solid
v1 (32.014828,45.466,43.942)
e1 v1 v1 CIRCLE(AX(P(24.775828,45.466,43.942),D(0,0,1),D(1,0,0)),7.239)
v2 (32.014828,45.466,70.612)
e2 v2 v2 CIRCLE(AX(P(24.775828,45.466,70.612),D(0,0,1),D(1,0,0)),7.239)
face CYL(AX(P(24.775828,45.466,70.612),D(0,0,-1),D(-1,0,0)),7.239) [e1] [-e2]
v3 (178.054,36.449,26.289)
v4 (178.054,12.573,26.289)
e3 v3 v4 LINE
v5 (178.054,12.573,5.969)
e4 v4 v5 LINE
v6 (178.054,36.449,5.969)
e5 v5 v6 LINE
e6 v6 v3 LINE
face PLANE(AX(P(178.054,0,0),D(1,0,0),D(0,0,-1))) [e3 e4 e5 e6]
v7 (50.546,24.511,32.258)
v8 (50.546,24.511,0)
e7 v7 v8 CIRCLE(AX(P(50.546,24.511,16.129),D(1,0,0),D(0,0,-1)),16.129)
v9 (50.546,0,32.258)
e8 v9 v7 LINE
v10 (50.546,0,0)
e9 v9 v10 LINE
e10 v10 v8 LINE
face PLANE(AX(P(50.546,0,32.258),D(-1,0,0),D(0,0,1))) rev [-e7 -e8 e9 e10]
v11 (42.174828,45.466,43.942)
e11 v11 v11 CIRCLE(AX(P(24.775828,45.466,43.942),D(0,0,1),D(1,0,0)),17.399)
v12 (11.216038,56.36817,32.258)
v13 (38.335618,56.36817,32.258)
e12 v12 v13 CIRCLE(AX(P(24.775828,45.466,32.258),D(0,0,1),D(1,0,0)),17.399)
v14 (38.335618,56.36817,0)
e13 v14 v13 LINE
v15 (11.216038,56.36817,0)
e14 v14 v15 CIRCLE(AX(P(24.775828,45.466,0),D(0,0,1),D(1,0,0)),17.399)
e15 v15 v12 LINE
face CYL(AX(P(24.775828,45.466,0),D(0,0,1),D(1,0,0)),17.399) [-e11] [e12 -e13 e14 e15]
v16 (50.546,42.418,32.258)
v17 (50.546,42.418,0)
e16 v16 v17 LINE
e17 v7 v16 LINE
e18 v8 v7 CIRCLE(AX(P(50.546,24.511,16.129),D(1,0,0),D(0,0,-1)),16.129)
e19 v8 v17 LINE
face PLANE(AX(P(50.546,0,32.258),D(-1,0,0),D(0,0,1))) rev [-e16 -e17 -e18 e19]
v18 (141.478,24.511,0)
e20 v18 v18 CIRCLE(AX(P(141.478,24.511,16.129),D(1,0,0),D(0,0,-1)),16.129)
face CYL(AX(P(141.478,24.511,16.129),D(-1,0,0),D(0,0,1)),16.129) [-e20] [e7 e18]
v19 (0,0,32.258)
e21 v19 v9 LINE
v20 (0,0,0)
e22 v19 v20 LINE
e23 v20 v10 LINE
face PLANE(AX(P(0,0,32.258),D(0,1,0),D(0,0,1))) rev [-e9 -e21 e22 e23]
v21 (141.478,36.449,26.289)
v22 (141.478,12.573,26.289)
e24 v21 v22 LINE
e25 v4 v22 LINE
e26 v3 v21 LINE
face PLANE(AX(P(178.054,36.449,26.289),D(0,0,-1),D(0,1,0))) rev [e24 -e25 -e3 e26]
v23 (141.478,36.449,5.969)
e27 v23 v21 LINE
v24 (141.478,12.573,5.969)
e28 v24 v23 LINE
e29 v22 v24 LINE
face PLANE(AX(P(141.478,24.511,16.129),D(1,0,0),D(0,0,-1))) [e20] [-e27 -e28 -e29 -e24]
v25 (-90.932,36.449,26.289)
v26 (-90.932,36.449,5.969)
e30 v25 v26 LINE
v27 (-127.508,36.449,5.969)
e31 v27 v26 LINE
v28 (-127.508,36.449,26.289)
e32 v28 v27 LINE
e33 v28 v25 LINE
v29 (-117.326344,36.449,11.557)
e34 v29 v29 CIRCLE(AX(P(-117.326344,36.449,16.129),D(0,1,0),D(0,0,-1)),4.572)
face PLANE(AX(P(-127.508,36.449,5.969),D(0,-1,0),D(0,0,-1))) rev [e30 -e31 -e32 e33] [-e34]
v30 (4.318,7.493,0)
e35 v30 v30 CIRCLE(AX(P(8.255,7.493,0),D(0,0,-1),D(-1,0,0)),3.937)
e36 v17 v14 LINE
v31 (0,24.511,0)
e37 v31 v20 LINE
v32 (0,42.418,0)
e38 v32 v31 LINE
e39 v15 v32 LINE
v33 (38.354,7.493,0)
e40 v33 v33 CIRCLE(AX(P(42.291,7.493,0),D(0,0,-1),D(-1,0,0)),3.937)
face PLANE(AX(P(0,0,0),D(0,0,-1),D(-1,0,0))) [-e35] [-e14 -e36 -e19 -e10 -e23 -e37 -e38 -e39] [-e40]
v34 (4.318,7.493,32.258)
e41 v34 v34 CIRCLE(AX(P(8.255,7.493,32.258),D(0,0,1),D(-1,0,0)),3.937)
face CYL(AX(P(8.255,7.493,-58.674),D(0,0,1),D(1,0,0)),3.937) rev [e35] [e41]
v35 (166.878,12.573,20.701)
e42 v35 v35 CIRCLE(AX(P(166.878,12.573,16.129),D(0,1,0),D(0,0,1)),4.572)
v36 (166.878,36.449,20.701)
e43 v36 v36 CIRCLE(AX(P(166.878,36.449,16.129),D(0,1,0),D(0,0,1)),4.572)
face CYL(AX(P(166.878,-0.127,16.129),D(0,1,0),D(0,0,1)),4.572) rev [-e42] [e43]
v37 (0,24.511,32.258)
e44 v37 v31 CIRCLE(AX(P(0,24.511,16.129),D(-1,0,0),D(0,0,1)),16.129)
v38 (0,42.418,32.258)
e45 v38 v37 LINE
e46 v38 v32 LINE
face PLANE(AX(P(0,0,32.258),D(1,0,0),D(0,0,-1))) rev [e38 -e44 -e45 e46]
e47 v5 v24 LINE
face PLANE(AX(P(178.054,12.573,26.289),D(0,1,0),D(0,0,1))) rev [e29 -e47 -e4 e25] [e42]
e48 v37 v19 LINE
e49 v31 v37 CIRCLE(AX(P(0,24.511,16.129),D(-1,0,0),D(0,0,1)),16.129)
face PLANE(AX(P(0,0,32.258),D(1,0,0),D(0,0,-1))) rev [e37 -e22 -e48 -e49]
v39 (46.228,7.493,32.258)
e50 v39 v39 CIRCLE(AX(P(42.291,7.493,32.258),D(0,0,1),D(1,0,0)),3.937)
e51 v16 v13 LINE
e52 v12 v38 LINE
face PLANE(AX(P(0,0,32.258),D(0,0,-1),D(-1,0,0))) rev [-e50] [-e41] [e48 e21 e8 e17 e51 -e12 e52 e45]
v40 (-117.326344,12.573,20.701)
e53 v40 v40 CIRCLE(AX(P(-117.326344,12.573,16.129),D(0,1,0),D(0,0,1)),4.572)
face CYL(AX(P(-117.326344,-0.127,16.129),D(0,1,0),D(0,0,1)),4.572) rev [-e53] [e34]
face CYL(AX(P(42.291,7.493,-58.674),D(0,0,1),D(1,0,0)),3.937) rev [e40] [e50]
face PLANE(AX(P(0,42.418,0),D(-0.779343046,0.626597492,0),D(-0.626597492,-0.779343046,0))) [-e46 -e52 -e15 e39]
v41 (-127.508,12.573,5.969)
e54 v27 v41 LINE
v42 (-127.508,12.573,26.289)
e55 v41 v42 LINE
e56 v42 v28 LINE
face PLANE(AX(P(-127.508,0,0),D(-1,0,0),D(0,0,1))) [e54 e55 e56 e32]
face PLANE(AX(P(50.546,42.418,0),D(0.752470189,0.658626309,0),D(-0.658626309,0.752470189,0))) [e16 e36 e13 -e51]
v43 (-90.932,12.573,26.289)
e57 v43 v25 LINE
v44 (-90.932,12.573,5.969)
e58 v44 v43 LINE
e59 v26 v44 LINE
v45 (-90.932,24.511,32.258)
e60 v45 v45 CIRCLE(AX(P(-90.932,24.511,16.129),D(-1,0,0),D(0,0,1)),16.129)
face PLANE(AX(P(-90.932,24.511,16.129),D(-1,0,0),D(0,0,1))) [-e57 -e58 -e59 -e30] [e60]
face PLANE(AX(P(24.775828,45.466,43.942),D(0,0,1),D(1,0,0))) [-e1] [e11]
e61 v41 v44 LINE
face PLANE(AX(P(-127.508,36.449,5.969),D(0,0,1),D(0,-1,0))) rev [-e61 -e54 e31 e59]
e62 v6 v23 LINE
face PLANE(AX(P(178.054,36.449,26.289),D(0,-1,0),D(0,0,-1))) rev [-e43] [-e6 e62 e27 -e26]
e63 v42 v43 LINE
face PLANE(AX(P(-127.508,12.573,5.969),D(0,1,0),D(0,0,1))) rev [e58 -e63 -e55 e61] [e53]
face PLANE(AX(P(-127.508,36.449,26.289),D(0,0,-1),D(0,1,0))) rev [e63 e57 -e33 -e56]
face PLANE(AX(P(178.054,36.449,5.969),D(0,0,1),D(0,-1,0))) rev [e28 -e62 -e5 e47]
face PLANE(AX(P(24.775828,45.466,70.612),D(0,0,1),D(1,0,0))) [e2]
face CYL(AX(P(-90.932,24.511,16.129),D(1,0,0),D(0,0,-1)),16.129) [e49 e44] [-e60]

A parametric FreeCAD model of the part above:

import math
import FreeCAD as App
import Part
import Sketcher

V = App.Vector
Q = App.Units.Quantity


def add_polygon(sketch, points):
    """Adds a closed chain of lines whose ends are joined by coincident constraints."""
    first, n = sketch.GeometryCount, len(points)
    for a, b in zip(points, points[1:] + points[:1]):
        sketch.addGeometry(Part.LineSegment(App.Vector(*a, 0), App.Vector(*b, 0)), False)
    for i in range(n):
        sketch.addConstraint(Sketcher.Constraint("Coincident", first + i, 2, first + (i + 1) % n, 1))

doc = App.newDocument("Part")
body = doc.addObject("PartDesign::Body", "Body")

# Sketch on XY plane
sketch1 = body.newObject("Sketcher::SketchObject", "Sketch")
sketch1.AttachmentSupport = (doc.getObject("XY_Plane"), [""])
sketch1.MapMode = "FlatFace"
add_polygon(sketch1, [(0, 42), (0, 0), (51, 0), (51, 42)])  # lines 0-3
sketch1.addConstraint([
    Sketcher.Constraint("Vertical", 0),
    Sketcher.Constraint("Horizontal", 1),
    Sketcher.Constraint("Vertical", 2),
    Sketcher.Constraint("Horizontal", 3),
    Sketcher.Constraint("Coincident", 0, 2, -1, 1),
    Sketcher.Constraint("DistanceX", 1, 1, 1, 2, Q("1.99 in")),
    Sketcher.Constraint("DistanceY", 0, 2, 0, 1, Q("1.67 in")),
])
pad1 = body.newObject("PartDesign::Pad", "Pad")
pad1.Profile = sketch1
pad1.Length = Q("1.27 in")

# Sketch on XY plane
sketch2 = body.newObject("Sketcher::SketchObject", "Sketch001")
sketch2.AttachmentSupport = (doc.getObject("XY_Plane"), [""])
sketch2.MapMode = "FlatFace"
sketch2.AttachmentOffset = App.Placement(V(0, 0, 1.27 * 25.4), App.Rotation())
sketch2.addGeometry([
    Part.LineSegment(V(11, 56, 0), V(0, 42, 0)),
    Part.LineSegment(V(0, 42, 0), V(51, 42, 0)),
    Part.LineSegment(V(51, 42, 0), V(38, 56, 0)),
    Part.ArcOfCircle(Part.Circle(V(25, 45, 0), V(0, 0, 1), 17), math.radians(39), math.radians(141)),
], False)
sketch2.addConstraint([
    Sketcher.Constraint("Coincident", 0, 2, 1, 1),
    Sketcher.Constraint("Coincident", 1, 2, 2, 1),
    Sketcher.Constraint("Coincident", 2, 2, 3, 1),
    Sketcher.Constraint("Tangent", 3, 2, 0, 1),
    Sketcher.Constraint("Horizontal", 1),
    Sketcher.Constraint("PointOnObject", 0, 2, -2),
    Sketcher.Constraint("Horizontal", 2, 2, 3, 2),
    Sketcher.Constraint("Radius", 3, Q("0.685 in")),
    Sketcher.Constraint("DistanceX", 1, 1, 1, 2, Q("1.99 in")),
    Sketcher.Constraint("DistanceY", -1, 1, 3, 3, Q("1.79 in")),
    Sketcher.Constraint("DistanceY", -1, 1, 0, 2, Q("1.67 in")),
    Sketcher.Constraint("DistanceX", 3, 2, 2, 2, Q("1.0677 in")),
])
pad2 = body.newObject("PartDesign::Pad", "Pad001")
pad2.Profile = sketch2
pad2.Length = Q("1.27 in")
pad2.Reversed = True

# Sketch on YZ plane
sketch3 = body.newObject("Sketcher::SketchObject", "Sketch002")
sketch3.AttachmentSupport = (doc.getObject("YZ_Plane"), [""])
sketch3.MapMode = "FlatFace"
sketch3.addGeometry(Part.Circle(V(25, 16, 0), V(0, 0, 1), 16), False)
sketch3.addConstraint([
    Sketcher.Constraint("Diameter", 0, Q("1.27 in")),
    Sketcher.Constraint("DistanceX", -1, 1, 0, 3, Q("0.965 in")),
    Sketcher.Constraint("DistanceY", -1, 1, 0, 3, Q("0.635 in")),
])
pad3 = body.newObject("PartDesign::Pad", "Pad002")
pad3.Profile = sketch3
pad3.Length = Q("3.58 in")
pad3.Reversed = True

# Sketch on YZ plane
sketch4 = body.newObject("Sketcher::SketchObject", "Sketch003")
sketch4.AttachmentSupport = (doc.getObject("YZ_Plane"), [""])
sketch4.MapMode = "FlatFace"
sketch4.AttachmentOffset = App.Placement(V(0, 0, 1.99 * 25.4), App.Rotation())
sketch4.addGeometry(Part.Circle(V(25, 16, 0), V(0, 0, 1), 16), False)
sketch4.addConstraint([
    Sketcher.Constraint("Diameter", 0, Q("1.27 in")),
    Sketcher.Constraint("DistanceX", -1, 1, 0, 3, Q("0.965 in")),
    Sketcher.Constraint("DistanceY", -1, 1, 0, 3, Q("0.635 in")),
])
pad4 = body.newObject("PartDesign::Pad", "Pad003")
pad4.Profile = sketch4
pad4.Length = Q("3.58 in")

# Sketch on XY plane
sketch5 = body.newObject("Sketcher::SketchObject", "Sketch004")
sketch5.AttachmentSupport = (doc.getObject("XY_Plane"), [""])
sketch5.MapMode = "FlatFace"
sketch5.AttachmentOffset = App.Placement(V(0, 0, 1.27 * 25.4), App.Rotation())
sketch5.addGeometry([
    Part.Circle(V(42.3, 7.5, 0), V(0, 0, 1), 3.9),
    Part.Circle(V(8.3, 7.5, 0), V(0, 0, 1), 3.9),
], False)
sketch5.addConstraint([
    Sketcher.Constraint("Equal", 0, 1),
    Sketcher.Constraint("Horizontal", 0, 3, 1, 3),
    Sketcher.Constraint("Diameter", 0, Q("0.31 in")),
    Sketcher.Constraint("DistanceX", 1, 3, 0, 3, Q("1.34 in")),
    Sketcher.Constraint("DistanceX", -1, 1, 0, 3, Q("1.665 in")),
    Sketcher.Constraint("DistanceY", -1, 1, 0, 3, Q("0.295 in")),
])
pocket1 = body.newObject("PartDesign::Pocket", "Pocket")
pocket1.Profile = sketch5
pocket1.Length = Q("3.58 in")

# Sketch on XY plane
sketch6 = body.newObject("Sketcher::SketchObject", "Sketch005")
sketch6.AttachmentSupport = (doc.getObject("XY_Plane"), [""])
sketch6.MapMode = "FlatFace"
sketch6.AttachmentOffset = App.Placement(V(0, 0, 1.27 * 25.4), App.Rotation())
sketch6.addGeometry(Part.Circle(V(25, 45, 0), V(0, 0, 1), 17), False)
sketch6.addConstraint([
    Sketcher.Constraint("Diameter", 0, Q("1.37 in")),
    Sketcher.Constraint("DistanceY", -1, 1, 0, 3, Q("1.79 in")),
    Sketcher.Constraint("DistanceX", -1, 1, 0, 3, Q("24.775828 mm")),
])
pad5 = body.newObject("PartDesign::Pad", "Pad004")
pad5.Profile = sketch6
pad5.Length = Q("0.46 in")

# Sketch on XY plane
sketch7 = body.newObject("Sketcher::SketchObject", "Sketch006")
sketch7.AttachmentSupport = (doc.getObject("XY_Plane"), [""])
sketch7.MapMode = "FlatFace"
sketch7.AttachmentOffset = App.Placement(V(0, 0, 1.73 * 25.4), App.Rotation())
sketch7.addGeometry(Part.Circle(V(25, 45, 0), V(0, 0, 1), 7), False)
sketch7.addConstraint([
    Sketcher.Constraint("Diameter", 0, Q("0.57 in")),
    Sketcher.Constraint("DistanceY", -1, 1, 0, 3, Q("1.79 in")),
    Sketcher.Constraint("DistanceX", -1, 1, 0, 3, Q("24.775828 mm")),
])
pad6 = body.newObject("PartDesign::Pad", "Pad005")
pad6.Profile = sketch7
pad6.Length = Q("1.05 in")

# Sketch on YZ plane
sketch8 = body.newObject("Sketcher::SketchObject", "Sketch007")
sketch8.AttachmentSupport = (doc.getObject("YZ_Plane"), [""])
sketch8.MapMode = "FlatFace"
sketch8.AttachmentOffset = App.Placement(V(0, 0, 5.57 * 25.4), App.Rotation())
add_polygon(sketch8, [(36, 26), (13, 26), (13, 6), (36, 6)])  # lines 0-3
sketch8.addConstraint([
    Sketcher.Constraint("Horizontal", 0),
    Sketcher.Constraint("Vertical", 1),
    Sketcher.Constraint("Horizontal", 2),
    Sketcher.Constraint("Vertical", 3),
    Sketcher.Constraint("DistanceY", 1, 2, 1, 1, Q("0.8 in")),
    Sketcher.Constraint("DistanceX", 0, 2, 0, 1, Q("0.94 in")),
    Sketcher.Constraint("DistanceX", -1, 1, 0, 2, Q("0.495 in")),
    Sketcher.Constraint("DistanceY", -1, 1, 0, 2, Q("1.035 in")),
])
pad7 = body.newObject("PartDesign::Pad", "Pad006")
pad7.Profile = sketch8
pad7.Length = Q("1.44 in")

# Sketch on YZ plane
sketch9 = body.newObject("Sketcher::SketchObject", "Sketch008")
sketch9.AttachmentSupport = (doc.getObject("YZ_Plane"), [""])
sketch9.MapMode = "FlatFace"
sketch9.AttachmentOffset = App.Placement(V(0, 0, -3.58 * 25.4), App.Rotation())
add_polygon(sketch9, [(36, 6), (13, 6), (13, 26), (36, 26)])  # lines 0-3
sketch9.addConstraint([
    Sketcher.Constraint("Horizontal", 0),
    Sketcher.Constraint("Vertical", 1),
    Sketcher.Constraint("Horizontal", 2),
    Sketcher.Constraint("Vertical", 3),
    Sketcher.Constraint("DistanceY", 1, 1, 1, 2, Q("0.8 in")),
    Sketcher.Constraint("DistanceX", 0, 2, 0, 1, Q("0.94 in")),
    Sketcher.Constraint("DistanceX", -1, 1, 0, 2, Q("0.495 in")),
    Sketcher.Constraint("DistanceY", -1, 1, 0, 2, Q("0.235 in")),
])
pad8 = body.newObject("PartDesign::Pad", "Pad007")
pad8.Profile = sketch9
pad8.Length = Q("1.44 in")
pad8.Reversed = True

# Sketch on XZ plane
sketch10 = body.newObject("Sketcher::SketchObject", "Sketch009")
sketch10.AttachmentSupport = (doc.getObject("XZ_Plane"), [""])
sketch10.MapMode = "FlatFace"
sketch10.AttachmentOffset = App.Placement(V(0, 0, -1.435 * 25.4), App.Rotation())
sketch10.addGeometry([
    Part.Circle(V(166.9, 16.1, 0), V(0, 0, 1), 4.6),
    Part.Circle(V(-117.3, 16.1, 0), V(0, 0, 1), 4.6),
], False)
sketch10.addConstraint([
    Sketcher.Constraint("Equal", 0, 1),
    Sketcher.Constraint("Horizontal", 0, 3, 1, 3),
    Sketcher.Constraint("Diameter", 0, Q("0.36 in")),
    Sketcher.Constraint("DistanceX", -1, 1, 0, 3, Q("6.57 in")),
    Sketcher.Constraint("DistanceY", -1, 1, 0, 3, Q("0.635 in")),
    Sketcher.Constraint("DistanceX", 1, 3, -1, 1, Q("117.326344 mm")),
])
pocket2 = body.newObject("PartDesign::Pocket", "Pocket001")
pocket2.Profile = sketch10
pocket2.Length = Q("1.44 in")
pocket2.Reversed = True

doc.recompute()
